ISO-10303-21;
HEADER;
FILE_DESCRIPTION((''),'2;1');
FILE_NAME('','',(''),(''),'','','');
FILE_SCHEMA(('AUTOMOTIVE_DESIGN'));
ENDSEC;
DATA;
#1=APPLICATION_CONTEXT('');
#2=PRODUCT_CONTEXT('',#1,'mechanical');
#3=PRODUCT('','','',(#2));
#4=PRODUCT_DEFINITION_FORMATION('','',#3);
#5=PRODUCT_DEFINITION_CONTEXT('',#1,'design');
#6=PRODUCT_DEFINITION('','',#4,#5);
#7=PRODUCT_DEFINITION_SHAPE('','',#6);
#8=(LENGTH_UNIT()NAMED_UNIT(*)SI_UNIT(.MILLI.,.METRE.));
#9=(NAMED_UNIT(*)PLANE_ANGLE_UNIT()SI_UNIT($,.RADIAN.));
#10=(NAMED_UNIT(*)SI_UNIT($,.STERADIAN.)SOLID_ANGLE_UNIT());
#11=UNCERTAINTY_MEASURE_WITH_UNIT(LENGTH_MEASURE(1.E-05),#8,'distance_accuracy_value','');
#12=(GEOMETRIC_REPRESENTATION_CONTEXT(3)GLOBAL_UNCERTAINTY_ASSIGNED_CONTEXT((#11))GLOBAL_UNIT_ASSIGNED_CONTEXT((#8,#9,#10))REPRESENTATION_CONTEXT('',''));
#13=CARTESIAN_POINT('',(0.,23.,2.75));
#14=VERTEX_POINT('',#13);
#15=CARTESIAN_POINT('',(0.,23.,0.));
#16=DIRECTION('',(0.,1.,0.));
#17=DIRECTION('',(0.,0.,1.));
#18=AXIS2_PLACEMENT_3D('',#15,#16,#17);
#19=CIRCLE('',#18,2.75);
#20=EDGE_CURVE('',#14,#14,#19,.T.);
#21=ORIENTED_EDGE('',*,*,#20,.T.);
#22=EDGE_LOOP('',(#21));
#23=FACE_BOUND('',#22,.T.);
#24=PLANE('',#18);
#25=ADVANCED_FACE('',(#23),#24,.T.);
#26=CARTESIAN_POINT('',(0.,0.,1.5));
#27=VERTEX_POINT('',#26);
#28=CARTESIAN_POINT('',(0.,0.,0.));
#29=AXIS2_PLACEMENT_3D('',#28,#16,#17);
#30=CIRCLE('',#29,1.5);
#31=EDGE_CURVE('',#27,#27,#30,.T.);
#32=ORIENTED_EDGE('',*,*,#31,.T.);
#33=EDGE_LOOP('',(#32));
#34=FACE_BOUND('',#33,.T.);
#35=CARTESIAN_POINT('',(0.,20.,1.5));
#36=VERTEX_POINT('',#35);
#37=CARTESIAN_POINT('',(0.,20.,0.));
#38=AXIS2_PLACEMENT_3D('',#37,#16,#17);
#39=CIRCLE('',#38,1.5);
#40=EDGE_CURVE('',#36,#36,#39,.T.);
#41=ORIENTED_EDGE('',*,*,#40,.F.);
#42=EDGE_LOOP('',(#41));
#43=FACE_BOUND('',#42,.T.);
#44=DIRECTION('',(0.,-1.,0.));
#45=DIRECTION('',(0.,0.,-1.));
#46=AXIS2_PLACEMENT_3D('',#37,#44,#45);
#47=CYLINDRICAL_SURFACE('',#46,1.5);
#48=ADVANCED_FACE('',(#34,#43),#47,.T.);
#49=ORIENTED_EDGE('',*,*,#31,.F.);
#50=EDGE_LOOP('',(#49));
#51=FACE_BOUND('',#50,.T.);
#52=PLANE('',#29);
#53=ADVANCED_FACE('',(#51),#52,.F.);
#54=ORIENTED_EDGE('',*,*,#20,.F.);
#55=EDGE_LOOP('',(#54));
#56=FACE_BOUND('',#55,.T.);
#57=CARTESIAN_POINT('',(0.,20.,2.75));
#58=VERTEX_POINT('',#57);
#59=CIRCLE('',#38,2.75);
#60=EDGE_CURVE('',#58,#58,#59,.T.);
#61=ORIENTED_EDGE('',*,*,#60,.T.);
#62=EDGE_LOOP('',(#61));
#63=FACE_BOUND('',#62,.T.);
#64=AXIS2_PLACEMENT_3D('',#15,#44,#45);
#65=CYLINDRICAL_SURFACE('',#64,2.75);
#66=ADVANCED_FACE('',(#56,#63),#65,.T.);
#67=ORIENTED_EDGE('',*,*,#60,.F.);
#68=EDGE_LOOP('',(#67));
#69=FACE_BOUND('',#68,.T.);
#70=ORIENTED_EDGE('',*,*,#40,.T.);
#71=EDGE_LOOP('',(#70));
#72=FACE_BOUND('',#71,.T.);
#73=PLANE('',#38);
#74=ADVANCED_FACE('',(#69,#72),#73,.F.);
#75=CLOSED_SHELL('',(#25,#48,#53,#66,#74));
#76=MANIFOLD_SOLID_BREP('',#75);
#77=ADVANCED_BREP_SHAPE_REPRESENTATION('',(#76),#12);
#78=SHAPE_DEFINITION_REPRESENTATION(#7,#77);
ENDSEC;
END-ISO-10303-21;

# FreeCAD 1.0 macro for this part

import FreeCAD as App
import Part
import Sketcher
from FreeCAD import Vector

doc = App.newDocument("Part")
body = doc.addObject("PartDesign::Body", "Body")

# Sketch on XZ plane
sketch1 = doc.addObject("Sketcher::SketchObject", "Sketch")
body.addObject(sketch1)
sketch1.AttachmentSupport = (doc.XZ_Plane, [""])
sketch1.MapMode = "FlatFace"
sketch1.addGeometry(Part.Circle(Vector(0, 0, 0), Vector(0, 0, 1), 1.5), False)
sketch1.addConstraint([
    Sketcher.Constraint("Coincident", 0, 3, -1, 1),
    Sketcher.Constraint("Diameter", 0, 3.0),
])
pad1 = doc.addObject("PartDesign::Pad", "Pad")
body.addObject(pad1)
pad1.Profile = sketch1
pad1.Length = 20
pad1.Reversed = True

# Sketch on XZ plane
sketch2 = doc.addObject("Sketcher::SketchObject", "Sketch001")
body.addObject(sketch2)
sketch2.AttachmentSupport = (doc.XZ_Plane, [""])
sketch2.MapMode = "FlatFace"
sketch2.AttachmentOffset = App.Placement(Vector(0, 0, -20), App.Rotation())
sketch2.addGeometry(Part.Circle(Vector(0, 0, 0), Vector(0, 0, 1), 2.8), False)
sketch2.addConstraint([
    Sketcher.Constraint("Coincident", 0, 3, -1, 1),
    Sketcher.Constraint("Diameter", 0, 5.5),
])
pad2 = doc.addObject("PartDesign::Pad", "Pad001")
body.addObject(pad2)
pad2.Profile = sketch2
pad2.Length = 3
pad2.Reversed = True

doc.recompute()
